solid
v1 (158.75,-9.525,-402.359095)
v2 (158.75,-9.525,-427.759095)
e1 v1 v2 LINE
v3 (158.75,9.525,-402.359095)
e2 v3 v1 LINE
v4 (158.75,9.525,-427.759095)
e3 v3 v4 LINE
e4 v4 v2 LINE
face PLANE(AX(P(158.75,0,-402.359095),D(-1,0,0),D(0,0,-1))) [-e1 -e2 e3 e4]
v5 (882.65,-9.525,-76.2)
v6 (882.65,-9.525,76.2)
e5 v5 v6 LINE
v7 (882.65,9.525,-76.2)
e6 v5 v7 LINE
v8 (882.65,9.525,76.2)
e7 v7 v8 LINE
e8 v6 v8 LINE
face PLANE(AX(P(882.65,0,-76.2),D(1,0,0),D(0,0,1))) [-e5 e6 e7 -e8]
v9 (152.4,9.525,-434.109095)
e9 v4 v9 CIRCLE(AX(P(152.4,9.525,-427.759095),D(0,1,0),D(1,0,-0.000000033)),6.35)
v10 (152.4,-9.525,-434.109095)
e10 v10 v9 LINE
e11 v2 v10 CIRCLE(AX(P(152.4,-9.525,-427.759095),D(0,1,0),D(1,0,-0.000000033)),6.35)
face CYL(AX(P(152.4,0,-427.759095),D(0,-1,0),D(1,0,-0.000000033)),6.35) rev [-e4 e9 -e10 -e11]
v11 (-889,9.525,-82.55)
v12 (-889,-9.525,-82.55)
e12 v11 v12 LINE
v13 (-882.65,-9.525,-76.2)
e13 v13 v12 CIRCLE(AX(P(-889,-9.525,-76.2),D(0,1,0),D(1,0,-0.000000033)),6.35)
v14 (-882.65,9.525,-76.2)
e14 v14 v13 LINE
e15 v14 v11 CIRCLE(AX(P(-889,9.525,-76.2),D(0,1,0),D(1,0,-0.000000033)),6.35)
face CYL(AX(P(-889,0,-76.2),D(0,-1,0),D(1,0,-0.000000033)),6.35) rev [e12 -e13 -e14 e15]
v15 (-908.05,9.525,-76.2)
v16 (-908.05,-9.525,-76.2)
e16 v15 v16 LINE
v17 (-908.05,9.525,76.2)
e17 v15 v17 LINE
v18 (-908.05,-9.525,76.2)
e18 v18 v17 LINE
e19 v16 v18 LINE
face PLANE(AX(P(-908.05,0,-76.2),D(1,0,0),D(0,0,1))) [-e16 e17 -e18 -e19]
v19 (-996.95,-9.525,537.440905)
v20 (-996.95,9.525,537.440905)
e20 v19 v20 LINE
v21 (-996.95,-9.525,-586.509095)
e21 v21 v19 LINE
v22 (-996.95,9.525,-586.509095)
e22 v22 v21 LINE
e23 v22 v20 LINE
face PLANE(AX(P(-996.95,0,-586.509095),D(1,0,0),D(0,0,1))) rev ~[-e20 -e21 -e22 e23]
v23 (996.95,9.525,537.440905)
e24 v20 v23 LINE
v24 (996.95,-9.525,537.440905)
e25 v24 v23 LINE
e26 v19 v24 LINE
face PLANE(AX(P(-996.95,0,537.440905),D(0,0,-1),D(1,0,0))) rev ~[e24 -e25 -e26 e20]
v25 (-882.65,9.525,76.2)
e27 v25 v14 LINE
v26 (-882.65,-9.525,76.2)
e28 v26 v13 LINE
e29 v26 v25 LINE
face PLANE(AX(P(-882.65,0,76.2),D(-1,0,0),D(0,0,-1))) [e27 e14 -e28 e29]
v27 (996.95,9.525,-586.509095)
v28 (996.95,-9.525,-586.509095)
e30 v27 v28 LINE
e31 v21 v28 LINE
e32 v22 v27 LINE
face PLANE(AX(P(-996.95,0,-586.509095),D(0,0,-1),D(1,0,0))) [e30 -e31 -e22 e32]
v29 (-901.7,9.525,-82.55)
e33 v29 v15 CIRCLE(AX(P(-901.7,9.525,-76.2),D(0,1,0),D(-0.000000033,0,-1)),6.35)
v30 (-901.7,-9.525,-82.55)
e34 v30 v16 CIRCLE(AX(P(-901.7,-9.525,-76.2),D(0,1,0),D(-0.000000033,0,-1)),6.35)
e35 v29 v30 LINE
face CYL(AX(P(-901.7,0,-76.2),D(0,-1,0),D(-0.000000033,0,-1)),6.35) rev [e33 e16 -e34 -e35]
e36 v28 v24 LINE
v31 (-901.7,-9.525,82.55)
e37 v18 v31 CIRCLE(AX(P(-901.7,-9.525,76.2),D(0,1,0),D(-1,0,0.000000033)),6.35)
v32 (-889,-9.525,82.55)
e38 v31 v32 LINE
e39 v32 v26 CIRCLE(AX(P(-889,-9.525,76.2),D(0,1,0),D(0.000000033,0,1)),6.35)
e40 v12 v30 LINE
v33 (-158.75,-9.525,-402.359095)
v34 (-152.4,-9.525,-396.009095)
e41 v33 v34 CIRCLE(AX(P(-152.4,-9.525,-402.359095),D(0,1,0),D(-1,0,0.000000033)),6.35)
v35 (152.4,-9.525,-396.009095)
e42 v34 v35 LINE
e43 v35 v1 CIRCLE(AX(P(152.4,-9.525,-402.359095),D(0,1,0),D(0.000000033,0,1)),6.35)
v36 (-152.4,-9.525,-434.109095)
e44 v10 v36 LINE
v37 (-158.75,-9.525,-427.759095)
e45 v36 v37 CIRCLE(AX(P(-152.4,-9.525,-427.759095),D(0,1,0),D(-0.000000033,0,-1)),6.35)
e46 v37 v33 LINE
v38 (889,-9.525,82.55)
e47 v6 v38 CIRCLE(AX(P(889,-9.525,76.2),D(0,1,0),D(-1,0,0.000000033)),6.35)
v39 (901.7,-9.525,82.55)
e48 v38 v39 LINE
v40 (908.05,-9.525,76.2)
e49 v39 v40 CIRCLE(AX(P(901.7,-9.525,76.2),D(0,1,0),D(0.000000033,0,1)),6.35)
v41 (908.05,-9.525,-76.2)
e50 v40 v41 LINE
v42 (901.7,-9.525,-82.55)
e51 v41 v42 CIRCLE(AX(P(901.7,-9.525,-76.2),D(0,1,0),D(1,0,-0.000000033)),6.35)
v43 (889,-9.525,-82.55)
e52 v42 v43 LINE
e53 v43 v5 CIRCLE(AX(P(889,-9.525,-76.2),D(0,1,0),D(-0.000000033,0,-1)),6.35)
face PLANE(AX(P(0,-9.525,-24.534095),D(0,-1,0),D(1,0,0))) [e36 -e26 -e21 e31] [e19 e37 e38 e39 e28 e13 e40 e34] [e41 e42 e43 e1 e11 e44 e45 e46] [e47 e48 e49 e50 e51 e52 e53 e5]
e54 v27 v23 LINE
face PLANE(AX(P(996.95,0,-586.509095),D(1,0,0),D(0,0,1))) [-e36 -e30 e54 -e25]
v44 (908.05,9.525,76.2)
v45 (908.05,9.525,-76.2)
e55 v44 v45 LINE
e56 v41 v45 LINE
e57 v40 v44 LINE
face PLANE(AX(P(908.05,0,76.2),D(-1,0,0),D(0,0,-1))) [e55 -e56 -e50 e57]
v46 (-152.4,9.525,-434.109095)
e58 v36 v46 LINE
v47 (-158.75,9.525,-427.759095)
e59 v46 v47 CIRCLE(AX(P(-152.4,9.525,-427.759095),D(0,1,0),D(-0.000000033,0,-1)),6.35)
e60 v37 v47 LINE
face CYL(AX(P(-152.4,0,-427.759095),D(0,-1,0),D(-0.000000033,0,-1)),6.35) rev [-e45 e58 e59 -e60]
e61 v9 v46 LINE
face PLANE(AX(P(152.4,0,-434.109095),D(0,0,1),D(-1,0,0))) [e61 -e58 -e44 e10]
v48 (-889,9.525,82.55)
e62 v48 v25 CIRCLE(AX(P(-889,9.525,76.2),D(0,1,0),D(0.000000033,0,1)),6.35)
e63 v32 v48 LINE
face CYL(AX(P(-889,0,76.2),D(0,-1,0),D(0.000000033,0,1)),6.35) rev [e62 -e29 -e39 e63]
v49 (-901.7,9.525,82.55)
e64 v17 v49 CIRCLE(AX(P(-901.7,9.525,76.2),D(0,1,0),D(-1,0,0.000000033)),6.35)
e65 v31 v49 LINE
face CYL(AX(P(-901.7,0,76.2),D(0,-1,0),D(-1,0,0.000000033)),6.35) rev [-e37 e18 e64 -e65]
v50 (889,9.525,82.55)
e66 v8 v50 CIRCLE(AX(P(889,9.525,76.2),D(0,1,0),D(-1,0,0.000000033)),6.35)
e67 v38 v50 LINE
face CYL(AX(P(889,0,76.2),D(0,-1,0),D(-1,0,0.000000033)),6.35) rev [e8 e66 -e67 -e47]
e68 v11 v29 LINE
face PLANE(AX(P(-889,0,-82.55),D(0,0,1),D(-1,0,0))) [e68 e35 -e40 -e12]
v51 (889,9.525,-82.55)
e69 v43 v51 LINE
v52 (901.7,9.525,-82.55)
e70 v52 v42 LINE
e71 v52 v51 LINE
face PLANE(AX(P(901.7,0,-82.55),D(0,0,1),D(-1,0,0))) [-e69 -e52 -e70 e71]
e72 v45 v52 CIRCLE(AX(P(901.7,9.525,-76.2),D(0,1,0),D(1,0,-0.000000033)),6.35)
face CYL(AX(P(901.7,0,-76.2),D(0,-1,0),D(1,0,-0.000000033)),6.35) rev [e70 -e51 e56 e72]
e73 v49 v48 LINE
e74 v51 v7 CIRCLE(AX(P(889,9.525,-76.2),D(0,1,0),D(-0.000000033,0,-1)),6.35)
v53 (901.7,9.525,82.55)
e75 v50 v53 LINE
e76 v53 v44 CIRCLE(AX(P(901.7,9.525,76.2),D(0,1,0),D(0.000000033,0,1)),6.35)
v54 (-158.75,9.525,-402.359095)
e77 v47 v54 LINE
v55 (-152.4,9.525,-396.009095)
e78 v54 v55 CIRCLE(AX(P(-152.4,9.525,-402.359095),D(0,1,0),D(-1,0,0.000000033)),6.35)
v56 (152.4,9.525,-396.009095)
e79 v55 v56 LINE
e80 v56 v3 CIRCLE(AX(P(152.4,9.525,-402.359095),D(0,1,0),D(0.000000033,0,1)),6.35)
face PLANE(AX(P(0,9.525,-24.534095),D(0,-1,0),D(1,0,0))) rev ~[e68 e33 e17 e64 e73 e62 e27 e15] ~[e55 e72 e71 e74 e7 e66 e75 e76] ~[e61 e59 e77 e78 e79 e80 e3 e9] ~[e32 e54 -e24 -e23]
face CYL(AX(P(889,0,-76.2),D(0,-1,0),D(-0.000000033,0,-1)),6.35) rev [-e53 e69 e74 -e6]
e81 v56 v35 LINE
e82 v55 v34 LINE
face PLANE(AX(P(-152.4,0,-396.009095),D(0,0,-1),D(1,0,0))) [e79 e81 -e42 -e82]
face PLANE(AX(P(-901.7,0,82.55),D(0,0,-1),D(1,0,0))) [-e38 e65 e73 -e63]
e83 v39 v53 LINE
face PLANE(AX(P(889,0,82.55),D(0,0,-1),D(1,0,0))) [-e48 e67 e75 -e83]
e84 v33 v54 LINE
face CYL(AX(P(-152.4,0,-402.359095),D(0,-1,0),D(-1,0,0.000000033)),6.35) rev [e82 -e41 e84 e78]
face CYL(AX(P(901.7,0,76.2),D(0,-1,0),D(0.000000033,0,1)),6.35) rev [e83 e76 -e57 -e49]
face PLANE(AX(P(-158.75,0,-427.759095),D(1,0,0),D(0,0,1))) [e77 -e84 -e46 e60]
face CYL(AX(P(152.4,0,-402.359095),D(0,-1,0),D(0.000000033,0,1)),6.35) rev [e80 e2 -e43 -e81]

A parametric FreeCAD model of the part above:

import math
import FreeCAD as App
import Part
import Sketcher
from FreeCAD import Vector
Q = App.Units.Quantity

doc = App.newDocument("Part")
params = doc.addObject("Spreadsheet::Sheet", "Params")
for row, (alias, value) in enumerate([
    ("sketch1_width", "12 in"),
    ("sketch1_height", "1 in"),
    ("sketch1_height2", "6 in"),
    ("sketch1_radius", "0.25 in"),
    ("sketch1_width2", "78.5 in"),
    ("pad1_length", "0.75 in"),
], start=1):
    params.set(f"A{row}", alias)
    params.set(f"B{row}", "=" + value)
    params.setAlias(f"B{row}", alias)

body = doc.addObject("PartDesign::Body", "Body")

sketch1 = doc.addObject("Sketcher::SketchObject", "Sketch")
body.addObject(sketch1)
sketch1.AttachmentSupport = (doc.XZ_Plane, [""])
sketch1.MapMode = "FlatFace"
sketch1.addGeometry(Part.LineSegment(Vector(-996.95, 537.440905, 0), Vector(-996.95, -586.509095, 0)), False)
sketch1.addGeometry(Part.LineSegment(Vector(-996.95, -586.509095, 0), Vector(996.95, -586.509095, 0)), False)
sketch1.addGeometry(Part.LineSegment(Vector(996.95, -586.509095, 0), Vector(996.95, 537.440905, 0)), False)
sketch1.addGeometry(Part.LineSegment(Vector(996.95, 537.440905, 0), Vector(-996.95, 537.440905, 0)), False)
sketch1.addGeometry(Part.ArcOfCircle(Part.Circle(Vector(-152.4, -402.359095, 0), Vector(0, 0, 1), 6.35), math.radians(90.000002), math.radians(179.999998)), False)
sketch1.addGeometry(Part.LineSegment(Vector(-152.4, -396.009095, 0), Vector(152.4, -396.009095, 0)), False)
sketch1.addGeometry(Part.ArcOfCircle(Part.Circle(Vector(152.4, -402.359095, 0), Vector(0, 0, 1), 6.35), math.radians(0.000002), math.radians(89.999998)), False)
sketch1.addGeometry(Part.LineSegment(Vector(158.75, -402.359095, 0), Vector(158.75, -427.759095, 0)), False)
sketch1.addGeometry(Part.ArcOfCircle(Part.Circle(Vector(152.4, -427.759095, 0), Vector(0, 0, 1), 6.35), math.radians(-89.999998), math.radians(-0.000002)), False)
sketch1.addGeometry(Part.LineSegment(Vector(152.4, -434.109095, 0), Vector(-152.4, -434.109095, 0)), False)
sketch1.addGeometry(Part.ArcOfCircle(Part.Circle(Vector(-152.4, -427.759095, 0), Vector(0, 0, 1), 6.35), math.radians(-179.999998), math.radians(-90.000002)), False)
sketch1.addGeometry(Part.LineSegment(Vector(-158.75, -427.759095, 0), Vector(-158.75, -402.359095, 0)), False)
sketch1.addGeometry(Part.LineSegment(Vector(-882.65, 76.2, 0), Vector(-882.65, -76.2, 0)), False)
sketch1.addGeometry(Part.ArcOfCircle(Part.Circle(Vector(-889, -76.2, 0), Vector(0, 0, 1), 6.35), math.radians(-89.999998), math.radians(-0.000002)), False)
sketch1.addGeometry(Part.LineSegment(Vector(-889, -82.55, 0), Vector(-901.7, -82.55, 0)), False)
sketch1.addGeometry(Part.ArcOfCircle(Part.Circle(Vector(-901.7, -76.2, 0), Vector(0, 0, 1), 6.35), math.radians(-179.999998), math.radians(-90.000002)), False)
sketch1.addGeometry(Part.LineSegment(Vector(-908.05, -76.2, 0), Vector(-908.05, 76.2, 0)), False)
sketch1.addGeometry(Part.ArcOfCircle(Part.Circle(Vector(-901.7, 76.2, 0), Vector(0, 0, 1), 6.35), math.radians(90.000002), math.radians(179.999998)), False)
sketch1.addGeometry(Part.LineSegment(Vector(-901.7, 82.55, 0), Vector(-889, 82.55, 0)), False)
sketch1.addGeometry(Part.ArcOfCircle(Part.Circle(Vector(-889, 76.2, 0), Vector(0, 0, 1), 6.35), math.radians(0.000002), math.radians(89.999998)), False)
sketch1.addGeometry(Part.ArcOfCircle(Part.Circle(Vector(901.7, -76.2, 0), Vector(0, 0, 1), 6.35), math.radians(-89.999998), math.radians(-0.000002)), False)
sketch1.addGeometry(Part.LineSegment(Vector(901.7, -82.55, 0), Vector(889, -82.55, 0)), False)
sketch1.addGeometry(Part.ArcOfCircle(Part.Circle(Vector(889, -76.2, 0), Vector(0, 0, 1), 6.35), math.radians(-179.999998), math.radians(-90.000002)), False)
sketch1.addGeometry(Part.LineSegment(Vector(882.65, -76.2, 0), Vector(882.65, 76.2, 0)), False)
sketch1.addGeometry(Part.ArcOfCircle(Part.Circle(Vector(889, 76.2, 0), Vector(0, 0, 1), 6.35), math.radians(90.000002), math.radians(179.999998)), False)
sketch1.addGeometry(Part.LineSegment(Vector(889, 82.55, 0), Vector(901.7, 82.55, 0)), False)
sketch1.addGeometry(Part.ArcOfCircle(Part.Circle(Vector(901.7, 76.2, 0), Vector(0, 0, 1), 6.35), math.radians(0.000002), math.radians(89.999998)), False)
sketch1.addGeometry(Part.LineSegment(Vector(908.05, 76.2, 0), Vector(908.05, -76.2, 0)), False)
sketch1.addConstraint(Sketcher.Constraint("Coincident", 0, 2, 1, 1))
sketch1.addConstraint(Sketcher.Constraint("Coincident", 1, 2, 2, 1))
sketch1.addConstraint(Sketcher.Constraint("Coincident", 2, 2, 3, 1))
sketch1.addConstraint(Sketcher.Constraint("Coincident", 3, 2, 0, 1))
sketch1.addConstraint(Sketcher.Constraint("Tangent", 4, 1, 5, 1))
sketch1.addConstraint(Sketcher.Constraint("Tangent", 5, 2, 6, 2))
sketch1.addConstraint(Sketcher.Constraint("Tangent", 6, 1, 7, 1))
sketch1.addConstraint(Sketcher.Constraint("Tangent", 7, 2, 8, 2))
sketch1.addConstraint(Sketcher.Constraint("Tangent", 8, 1, 9, 1))
sketch1.addConstraint(Sketcher.Constraint("Tangent", 9, 2, 10, 2))
sketch1.addConstraint(Sketcher.Constraint("Tangent", 10, 1, 11, 1))
sketch1.addConstraint(Sketcher.Constraint("Tangent", 11, 2, 4, 2))
sketch1.addConstraint(Sketcher.Constraint("Tangent", 12, 2, 13, 2))
sketch1.addConstraint(Sketcher.Constraint("Tangent", 13, 1, 14, 1))
sketch1.addConstraint(Sketcher.Constraint("Tangent", 14, 2, 15, 2))
sketch1.addConstraint(Sketcher.Constraint("Tangent", 15, 1, 16, 1))
sketch1.addConstraint(Sketcher.Constraint("Tangent", 16, 2, 17, 2))
sketch1.addConstraint(Sketcher.Constraint("Tangent", 17, 1, 18, 1))
sketch1.addConstraint(Sketcher.Constraint("Tangent", 18, 2, 19, 2))
sketch1.addConstraint(Sketcher.Constraint("Tangent", 19, 1, 12, 1))
sketch1.addConstraint(Sketcher.Constraint("Tangent", 20, 1, 21, 1))
sketch1.addConstraint(Sketcher.Constraint("Tangent", 21, 2, 22, 2))
sketch1.addConstraint(Sketcher.Constraint("Tangent", 22, 1, 23, 1))
sketch1.addConstraint(Sketcher.Constraint("Tangent", 23, 2, 24, 2))
sketch1.addConstraint(Sketcher.Constraint("Tangent", 24, 1, 25, 1))
sketch1.addConstraint(Sketcher.Constraint("Tangent", 25, 2, 26, 2))
sketch1.addConstraint(Sketcher.Constraint("Tangent", 26, 1, 27, 1))
sketch1.addConstraint(Sketcher.Constraint("Tangent", 27, 2, 20, 2))
sketch1.addConstraint(Sketcher.Constraint("Vertical", 0))
sketch1.addConstraint(Sketcher.Constraint("Horizontal", 1))
sketch1.addConstraint(Sketcher.Constraint("Vertical", 2))
sketch1.addConstraint(Sketcher.Constraint("Horizontal", 3))
sketch1.addConstraint(Sketcher.Constraint("Horizontal", 5))
sketch1.addConstraint(Sketcher.Constraint("Vertical", 7))
sketch1.addConstraint(Sketcher.Constraint("Horizontal", 9))
sketch1.addConstraint(Sketcher.Constraint("Vertical", 11))
sketch1.addConstraint(Sketcher.Constraint("Vertical", 12))
sketch1.addConstraint(Sketcher.Constraint("Horizontal", 14))
sketch1.addConstraint(Sketcher.Constraint("Vertical", 16))
sketch1.addConstraint(Sketcher.Constraint("Horizontal", 18))
sketch1.addConstraint(Sketcher.Constraint("Horizontal", 21))
sketch1.addConstraint(Sketcher.Constraint("Vertical", 23))
sketch1.addConstraint(Sketcher.Constraint("Horizontal", 25))
sketch1.addConstraint(Sketcher.Constraint("Vertical", 27))
sketch1.addConstraint(Sketcher.Constraint("Equal", 4, 6))
sketch1.addConstraint(Sketcher.Constraint("Equal", 6, 8))
sketch1.addConstraint(Sketcher.Constraint("Equal", 8, 10))
sketch1.addConstraint(Sketcher.Constraint("Equal", 10, 13))
sketch1.addConstraint(Sketcher.Constraint("Equal", 13, 15))
sketch1.addConstraint(Sketcher.Constraint("Equal", 15, 17))
sketch1.addConstraint(Sketcher.Constraint("Equal", 17, 19))
sketch1.addConstraint(Sketcher.Constraint("Equal", 19, 20))
sketch1.addConstraint(Sketcher.Constraint("Equal", 20, 22))
sketch1.addConstraint(Sketcher.Constraint("Equal", 22, 24))
sketch1.addConstraint(Sketcher.Constraint("Equal", 24, 26))
sketch1.addConstraint(Sketcher.Constraint("Symmetric", 17, 3, 20, 3, -1, 1))
sketch1.addConstraint(Sketcher.Constraint("Symmetric", 13, 3, 24, 3, -1, 1))
sketch1.addConstraint(Sketcher.Constraint("Horizontal", 15, 3, 20, 3))
sketch1.addConstraint(Sketcher.Constraint("DistanceX", 5, 1, 5, 2, Q("12 in")))
sketch1.addConstraint(Sketcher.Constraint("DistanceY", 7, 2, 7, 1, Q("1 in")))
sketch1.addConstraint(Sketcher.Constraint("DistanceY", 12, 2, 12, 1, Q("6 in")))
sketch1.addConstraint(Sketcher.Constraint("Radius", 4, Q("0.25 in")))
sketch1.addConstraint(Sketcher.Constraint("DistanceX", 1, 1, 1, 2, Q("78.5 in")))
sketch1.addConstraint(Sketcher.Constraint("DistanceX", 14, 2, 14, 1, Q("0.5 in")))
sketch1.addConstraint(Sketcher.Constraint("DistanceX", 4, 3, -1, 1, Q("6 in")))
sketch1.addConstraint(Sketcher.Constraint("DistanceX", 13, 3, -1, 1, Q("35 in")))
sketch1.addConstraint(Sketcher.Constraint("DistanceY", 0, 2, 0, 1, Q("44.25 in")))
sketch1.addConstraint(Sketcher.Constraint("DistanceX", 0, 2, 12, 2, Q("4.5 in")))
sketch1.addConstraint(Sketcher.Constraint("DistanceY", 0, 2, 10, 3, Q("6.25 in")))
sketch1.addConstraint(Sketcher.Constraint("DistanceY", 4, 3, -1, 1, 402.359095))
sketch1.setExpression("Constraints[58]", "Params.sketch1_width")
sketch1.setExpression("Constraints[59]", "Params.sketch1_height")
sketch1.setExpression("Constraints[60]", "Params.sketch1_height2")
sketch1.setExpression("Constraints[61]", "Params.sketch1_radius")
sketch1.setExpression("Constraints[62]", "Params.sketch1_width2")
pad1 = doc.addObject("PartDesign::Pad", "Pad")
body.addObject(pad1)
pad1.Profile = sketch1
pad1.setExpression("Length", "Params.pad1_length")
pad1.Midplane = True

doc.recompute()
